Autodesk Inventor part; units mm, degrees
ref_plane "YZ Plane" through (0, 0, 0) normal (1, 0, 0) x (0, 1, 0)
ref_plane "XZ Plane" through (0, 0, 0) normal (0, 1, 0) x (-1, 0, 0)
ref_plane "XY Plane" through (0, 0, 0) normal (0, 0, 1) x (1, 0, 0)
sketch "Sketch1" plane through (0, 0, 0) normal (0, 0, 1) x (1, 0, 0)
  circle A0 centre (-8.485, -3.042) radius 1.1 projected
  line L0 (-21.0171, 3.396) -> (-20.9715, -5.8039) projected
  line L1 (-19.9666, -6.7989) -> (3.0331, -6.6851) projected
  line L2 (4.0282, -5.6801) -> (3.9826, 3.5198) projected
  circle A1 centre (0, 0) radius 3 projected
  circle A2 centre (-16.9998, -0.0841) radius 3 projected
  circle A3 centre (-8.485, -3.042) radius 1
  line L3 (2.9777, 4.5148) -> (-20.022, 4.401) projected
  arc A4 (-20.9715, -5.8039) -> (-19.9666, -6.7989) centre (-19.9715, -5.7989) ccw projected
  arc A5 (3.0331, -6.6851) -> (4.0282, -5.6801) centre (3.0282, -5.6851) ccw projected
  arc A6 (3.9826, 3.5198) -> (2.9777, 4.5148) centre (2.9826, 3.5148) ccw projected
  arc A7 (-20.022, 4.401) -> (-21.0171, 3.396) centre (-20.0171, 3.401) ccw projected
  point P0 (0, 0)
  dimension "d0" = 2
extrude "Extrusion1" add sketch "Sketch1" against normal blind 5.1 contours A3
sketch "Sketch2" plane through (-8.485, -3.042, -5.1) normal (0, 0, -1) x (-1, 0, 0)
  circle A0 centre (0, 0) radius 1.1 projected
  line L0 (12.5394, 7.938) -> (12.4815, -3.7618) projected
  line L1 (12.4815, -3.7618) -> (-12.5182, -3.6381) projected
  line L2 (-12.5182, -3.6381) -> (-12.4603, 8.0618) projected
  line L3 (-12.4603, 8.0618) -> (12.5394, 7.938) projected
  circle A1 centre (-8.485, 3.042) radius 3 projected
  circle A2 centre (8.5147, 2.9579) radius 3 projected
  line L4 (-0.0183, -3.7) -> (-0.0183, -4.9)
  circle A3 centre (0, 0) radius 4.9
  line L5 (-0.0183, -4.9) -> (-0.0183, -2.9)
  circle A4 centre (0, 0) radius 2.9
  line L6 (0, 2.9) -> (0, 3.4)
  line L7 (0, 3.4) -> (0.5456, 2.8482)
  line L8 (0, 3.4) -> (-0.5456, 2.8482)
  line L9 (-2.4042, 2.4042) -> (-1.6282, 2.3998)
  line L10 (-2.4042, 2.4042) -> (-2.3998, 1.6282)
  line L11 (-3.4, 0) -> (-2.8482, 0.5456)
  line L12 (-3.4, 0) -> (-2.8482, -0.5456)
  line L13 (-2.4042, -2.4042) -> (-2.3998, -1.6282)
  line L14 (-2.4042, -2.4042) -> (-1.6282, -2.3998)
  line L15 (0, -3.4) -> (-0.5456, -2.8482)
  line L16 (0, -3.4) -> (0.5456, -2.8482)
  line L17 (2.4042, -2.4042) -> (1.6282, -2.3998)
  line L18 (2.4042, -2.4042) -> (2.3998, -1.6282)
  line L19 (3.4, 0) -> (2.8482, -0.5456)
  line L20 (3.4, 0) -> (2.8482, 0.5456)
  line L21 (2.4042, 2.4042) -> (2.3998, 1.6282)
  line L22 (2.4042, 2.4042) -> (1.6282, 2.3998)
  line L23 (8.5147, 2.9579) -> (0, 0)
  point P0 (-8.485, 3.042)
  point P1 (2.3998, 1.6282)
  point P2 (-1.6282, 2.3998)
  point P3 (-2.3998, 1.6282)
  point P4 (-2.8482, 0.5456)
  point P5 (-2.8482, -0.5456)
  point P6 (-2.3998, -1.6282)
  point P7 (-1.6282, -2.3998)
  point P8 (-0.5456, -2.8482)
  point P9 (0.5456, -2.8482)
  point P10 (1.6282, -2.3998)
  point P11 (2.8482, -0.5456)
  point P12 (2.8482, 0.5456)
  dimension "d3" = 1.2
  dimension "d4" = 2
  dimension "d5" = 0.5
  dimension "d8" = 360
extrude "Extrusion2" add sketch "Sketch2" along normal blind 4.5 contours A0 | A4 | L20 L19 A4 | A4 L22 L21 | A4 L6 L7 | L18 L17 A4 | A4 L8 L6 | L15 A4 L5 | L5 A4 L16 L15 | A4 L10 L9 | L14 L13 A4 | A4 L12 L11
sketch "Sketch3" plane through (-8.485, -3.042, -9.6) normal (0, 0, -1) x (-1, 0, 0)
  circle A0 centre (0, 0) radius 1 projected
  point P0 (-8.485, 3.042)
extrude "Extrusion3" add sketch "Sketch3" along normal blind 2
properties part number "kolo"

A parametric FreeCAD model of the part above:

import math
import FreeCAD as App
import Part
import Sketcher
from FreeCAD import Vector
Q = App.Units.Quantity

doc = App.newDocument("Part")
body = doc.addObject("PartDesign::Body", "Body")

# Sketch on XY plane
sketch1 = body.newObject("Sketcher::SketchObject", "Sketch")
sketch1.AttachmentSupport = (doc.getObject("XY_Plane"), [""])
sketch1.MapMode = "FlatFace"
sketch1.addGeometry(Part.Circle(Vector(-8.5, -3, 0), Vector(0, 0, 1), 1), False)
sketch1.addConstraint(Sketcher.Constraint("Diameter", 0, Q("2 mm")))
sketch1.addConstraint(Sketcher.Constraint("DistanceX", 0, 3, -1, 1, Q("8.485 mm")))
sketch1.addConstraint(Sketcher.Constraint("DistanceY", 0, 3, -1, 1, Q("3.042 mm")))
pad1 = body.newObject("PartDesign::Pad", "Pad")
pad1.Profile = sketch1
pad1.Length = 5.1
pad1.Reversed = True

# Sketch on XY plane
sketch2 = body.newObject("Sketcher::SketchObject", "Sketch001")
sketch2.AttachmentSupport = (doc.getObject("XY_Plane"), [""])
sketch2.MapMode = "FlatFace"
sketch2.AttachmentOffset = App.Placement(Vector(0, 0, -5.1), App.Rotation())
sketch2.addGeometry(Part.ArcOfCircle(Part.Circle(Vector(-8.485, -3.042, 0), Vector(0, 0, 1), 2.9), math.radians(160.843414), math.radians(169.155814)), False)
sketch2.addGeometry(Part.ArcOfCircle(Part.Circle(Vector(-8.485, -3.042, 0), Vector(0, 0, 1), 2.9), math.radians(145.844159), math.radians(160.843414)), False)
sketch2.addGeometry(Part.LineSegment(Vector(-10.8848, -1.4138, 0), Vector(-10.8892, -0.6378, 0)), False)
sketch2.addGeometry(Part.LineSegment(Vector(-10.8892, -0.6378, 0), Vector(-10.1132, -0.6422, 0)), False)
sketch2.addGeometry(Part.ArcOfCircle(Part.Circle(Vector(-8.485, -3.042, 0), Vector(0, 0, 1), 2.9), math.radians(100.844186), math.radians(124.155841)), False)
sketch2.addGeometry(Part.LineSegment(Vector(-9.0306, -0.1938, 0), Vector(-8.485, 0.358, 0)), False)
sketch2.addGeometry(Part.LineSegment(Vector(-8.485, 0.358, 0), Vector(-7.9394, -0.1938, 0)), False)
sketch2.addGeometry(Part.ArcOfCircle(Part.Circle(Vector(-8.485, -3.042, 0), Vector(0, 0, 1), 2.9), math.radians(55.844159), math.radians(79.155814)), False)
sketch2.addGeometry(Part.LineSegment(Vector(-6.8568, -0.6422, 0), Vector(-6.0808, -0.6378, 0)), False)
sketch2.addGeometry(Part.LineSegment(Vector(-6.0808, -0.6378, 0), Vector(-6.0852, -1.4138, 0)), False)
sketch2.addGeometry(Part.ArcOfCircle(Part.Circle(Vector(-8.485, -3.042, 0), Vector(0, 0, 1), 2.9), math.radians(10.844186), math.radians(34.155841)), False)
sketch2.addGeometry(Part.LineSegment(Vector(-5.6368, -2.4964, 0), Vector(-5.085, -3.042, 0)), False)
sketch2.addGeometry(Part.LineSegment(Vector(-5.085, -3.042, 0), Vector(-5.6368, -3.5876, 0)), False)
sketch2.addGeometry(Part.ArcOfCircle(Part.Circle(Vector(-8.485, -3.042, 0), Vector(0, 0, 1), 2.9), math.radians(-34.155841), math.radians(-10.844186)), False)
sketch2.addGeometry(Part.LineSegment(Vector(-6.0852, -4.6702, 0), Vector(-6.0808, -5.4462, 0)), False)
sketch2.addGeometry(Part.LineSegment(Vector(-6.0808, -5.4462, 0), Vector(-6.8568, -5.4418, 0)), False)
sketch2.addGeometry(Part.ArcOfCircle(Part.Circle(Vector(-8.485, -3.042, 0), Vector(0, 0, 1), 2.9), math.radians(-79.155814), math.radians(-55.844159)), False)
sketch2.addGeometry(Part.LineSegment(Vector(-7.9394, -5.8902, 0), Vector(-8.485, -6.442, 0)), False)
sketch2.addGeometry(Part.LineSegment(Vector(-8.485, -6.442, 0), Vector(-9.0306, -5.8902, 0)), False)
sketch2.addGeometry(Part.ArcOfCircle(Part.Circle(Vector(-8.485, -3.042, 0), Vector(0, 0, 1), 2.9), math.radians(-124.155841), math.radians(-100.844186)), False)
sketch2.addGeometry(Part.LineSegment(Vector(-10.1132, -5.4418, 0), Vector(-10.8892, -5.4462, 0)), False)
sketch2.addGeometry(Part.LineSegment(Vector(-10.8892, -5.4462, 0), Vector(-10.8848, -4.6702, 0)), False)
sketch2.addGeometry(Part.ArcOfCircle(Part.Circle(Vector(-8.485, -3.042, 0), Vector(0, 0, 1), 2.9), math.radians(-169.155814), math.radians(-145.844159)), False)
sketch2.addGeometry(Part.LineSegment(Vector(-11.3332, -3.5876, 0), Vector(-11.885, -3.042, 0)), False)
sketch2.addGeometry(Part.LineSegment(Vector(-11.885, -3.042, 0), Vector(-11.3332, -2.4964, 0)), False)
sketch2.addConstraint(Sketcher.Constraint("Tangent", 0, 1, 1, 2))
sketch2.addConstraint(Sketcher.Constraint("Coincident", 1, 1, 2, 1))
sketch2.addConstraint(Sketcher.Constraint("Coincident", 2, 2, 3, 1))
sketch2.addConstraint(Sketcher.Constraint("Coincident", 3, 2, 4, 2))
sketch2.addConstraint(Sketcher.Constraint("Coincident", 4, 1, 5, 1))
sketch2.addConstraint(Sketcher.Constraint("Coincident", 5, 2, 6, 1))
sketch2.addConstraint(Sketcher.Constraint("Coincident", 6, 2, 7, 2))
sketch2.addConstraint(Sketcher.Constraint("Coincident", 7, 1, 8, 1))
sketch2.addConstraint(Sketcher.Constraint("Coincident", 8, 2, 9, 1))
sketch2.addConstraint(Sketcher.Constraint("Coincident", 9, 2, 10, 2))
sketch2.addConstraint(Sketcher.Constraint("Coincident", 10, 1, 11, 1))
sketch2.addConstraint(Sketcher.Constraint("Coincident", 11, 2, 12, 1))
sketch2.addConstraint(Sketcher.Constraint("Coincident", 12, 2, 13, 2))
sketch2.addConstraint(Sketcher.Constraint("Coincident", 13, 1, 14, 1))
sketch2.addConstraint(Sketcher.Constraint("Coincident", 14, 2, 15, 1))
sketch2.addConstraint(Sketcher.Constraint("Coincident", 15, 2, 16, 2))
sketch2.addConstraint(Sketcher.Constraint("Coincident", 16, 1, 17, 1))
sketch2.addConstraint(Sketcher.Constraint("Coincident", 17, 2, 18, 1))
sketch2.addConstraint(Sketcher.Constraint("Coincident", 18, 2, 19, 2))
sketch2.addConstraint(Sketcher.Constraint("Coincident", 19, 1, 20, 1))
sketch2.addConstraint(Sketcher.Constraint("Coincident", 20, 2, 21, 1))
sketch2.addConstraint(Sketcher.Constraint("Coincident", 21, 2, 22, 2))
sketch2.addConstraint(Sketcher.Constraint("Coincident", 22, 1, 23, 1))
sketch2.addConstraint(Sketcher.Constraint("Coincident", 23, 2, 24, 1))
sketch2.addConstraint(Sketcher.Constraint("Coincident", 24, 2, 0, 2))
sketch2.addConstraint(Sketcher.Constraint("Coincident", 4, 3, 0, 3))
sketch2.addConstraint(Sketcher.Constraint("Coincident", 7, 3, 0, 3))
sketch2.addConstraint(Sketcher.Constraint("Coincident", 10, 3, 0, 3))
sketch2.addConstraint(Sketcher.Constraint("Coincident", 13, 3, 0, 3))
sketch2.addConstraint(Sketcher.Constraint("Coincident", 16, 3, 0, 3))
sketch2.addConstraint(Sketcher.Constraint("Coincident", 19, 3, 0, 3))
sketch2.addConstraint(Sketcher.Constraint("Coincident", 22, 3, 0, 3))
sketch2.addConstraint(Sketcher.Constraint("Equal", 0, 1))
sketch2.addConstraint(Sketcher.Constraint("Equal", 1, 4))
sketch2.addConstraint(Sketcher.Constraint("Equal", 4, 7))
sketch2.addConstraint(Sketcher.Constraint("Equal", 7, 10))
sketch2.addConstraint(Sketcher.Constraint("Equal", 10, 13))
sketch2.addConstraint(Sketcher.Constraint("Equal", 13, 16))
sketch2.addConstraint(Sketcher.Constraint("Equal", 16, 19))
sketch2.addConstraint(Sketcher.Constraint("Equal", 19, 22))
sketch2.addConstraint(Sketcher.Constraint("Perpendicular", 2, 8))
sketch2.addConstraint(Sketcher.Constraint("Perpendicular", 3, 9))
sketch2.addConstraint(Sketcher.Constraint("Perpendicular", 5, 11))
sketch2.addConstraint(Sketcher.Constraint("Perpendicular", 6, 12))
sketch2.addConstraint(Sketcher.Constraint("Perpendicular", 8, 14))
sketch2.addConstraint(Sketcher.Constraint("Perpendicular", 9, 15))
sketch2.addConstraint(Sketcher.Constraint("Perpendicular", 11, 17))
sketch2.addConstraint(Sketcher.Constraint("Perpendicular", 12, 18))
sketch2.addConstraint(Sketcher.Constraint("Perpendicular", 14, 20))
sketch2.addConstraint(Sketcher.Constraint("Perpendicular", 15, 21))
sketch2.addConstraint(Sketcher.Constraint("Perpendicular", 17, 23))
sketch2.addConstraint(Sketcher.Constraint("Perpendicular", 18, 24))
sketch2.addConstraint(Sketcher.Constraint("Horizontal", 4, 1, 6, 2))
sketch2.addConstraint(Sketcher.Constraint("Horizontal", 3, 2, 7, 1))
sketch2.addConstraint(Sketcher.Constraint("Horizontal", 2, 2, 8, 2))
sketch2.addConstraint(Sketcher.Constraint("Horizontal", 1, 1, 9, 2))
sketch2.addConstraint(Sketcher.Constraint("Horizontal", 22, 3, 11, 2))
sketch2.addConstraint(Sketcher.Constraint("Horizontal", 16, 1, 18, 2))
sketch2.addConstraint(Sketcher.Constraint("Horizontal", 15, 2, 19, 1))
sketch2.addConstraint(Sketcher.Constraint("Horizontal", 14, 2, 20, 2))
sketch2.addConstraint(Sketcher.Constraint("Horizontal", 12, 2, 22, 1))
sketch2.addConstraint(Sketcher.Constraint("Horizontal", 11, 2, 23, 2))
sketch2.addConstraint(Sketcher.Constraint("Horizontal", 10, 1, 24, 2))
sketch2.addConstraint(Sketcher.Constraint("Vertical", 9, 2, 13, 1))
sketch2.addConstraint(Sketcher.Constraint("Vertical", 7, 1, 15, 2))
sketch2.addConstraint(Sketcher.Constraint("Vertical", 6, 2, 16, 1))
sketch2.addConstraint(Sketcher.Constraint("Equal", 2, 3))
sketch2.addConstraint(Sketcher.Constraint("Equal", 3, 5))
sketch2.addConstraint(Sketcher.Constraint("Equal", 9, 11))
sketch2.addConstraint(Sketcher.Constraint("Radius", 0, Q("2.9 mm")))
sketch2.addConstraint(Sketcher.Constraint("DistanceY", 0, 3, 5, 2, Q("3.4 mm")))
sketch2.addConstraint(Sketcher.Constraint("DistanceY", 1, 1, 4, 1, Q("1.22 mm")))
sketch2.addConstraint(Sketcher.Constraint("Distance", 2, Q("0.776 mm")))
sketch2.addConstraint(Sketcher.Constraint("DistanceX", 0, 3, -1, 1, Q("8.485 mm")))
sketch2.addConstraint(Sketcher.Constraint("DistanceY", 0, 3, -1, 1, Q("3.042 mm")))
sketch2.addConstraint(Sketcher.Constraint("DistanceY", 24, 2, 0, 1, Q("0.406 mm")))
pad2 = body.newObject("PartDesign::Pad", "Pad001")
pad2.Profile = sketch2
pad2.Length = 4.5
pad2.Reversed = True

# Sketch on XY plane
sketch3 = body.newObject("Sketcher::SketchObject", "Sketch002")
sketch3.AttachmentSupport = (doc.getObject("XY_Plane"), [""])
sketch3.MapMode = "FlatFace"
sketch3.AttachmentOffset = App.Placement(Vector(0, 0, -9.6), App.Rotation())
sketch3.addGeometry(Part.Circle(Vector(-8.5, -3, 0), Vector(0, 0, 1), 1), False)
sketch3.addConstraint(Sketcher.Constraint("Diameter", 0, Q("2 mm")))
sketch3.addConstraint(Sketcher.Constraint("DistanceX", 0, 3, -1, 1, Q("8.485 mm")))
sketch3.addConstraint(Sketcher.Constraint("DistanceY", 0, 3, -1, 1, Q("3.042 mm")))
pad3 = body.newObject("PartDesign::Pad", "Pad002")
pad3.Profile = sketch3
pad3.Length = 2
pad3.Reversed = True

doc.recompute()
